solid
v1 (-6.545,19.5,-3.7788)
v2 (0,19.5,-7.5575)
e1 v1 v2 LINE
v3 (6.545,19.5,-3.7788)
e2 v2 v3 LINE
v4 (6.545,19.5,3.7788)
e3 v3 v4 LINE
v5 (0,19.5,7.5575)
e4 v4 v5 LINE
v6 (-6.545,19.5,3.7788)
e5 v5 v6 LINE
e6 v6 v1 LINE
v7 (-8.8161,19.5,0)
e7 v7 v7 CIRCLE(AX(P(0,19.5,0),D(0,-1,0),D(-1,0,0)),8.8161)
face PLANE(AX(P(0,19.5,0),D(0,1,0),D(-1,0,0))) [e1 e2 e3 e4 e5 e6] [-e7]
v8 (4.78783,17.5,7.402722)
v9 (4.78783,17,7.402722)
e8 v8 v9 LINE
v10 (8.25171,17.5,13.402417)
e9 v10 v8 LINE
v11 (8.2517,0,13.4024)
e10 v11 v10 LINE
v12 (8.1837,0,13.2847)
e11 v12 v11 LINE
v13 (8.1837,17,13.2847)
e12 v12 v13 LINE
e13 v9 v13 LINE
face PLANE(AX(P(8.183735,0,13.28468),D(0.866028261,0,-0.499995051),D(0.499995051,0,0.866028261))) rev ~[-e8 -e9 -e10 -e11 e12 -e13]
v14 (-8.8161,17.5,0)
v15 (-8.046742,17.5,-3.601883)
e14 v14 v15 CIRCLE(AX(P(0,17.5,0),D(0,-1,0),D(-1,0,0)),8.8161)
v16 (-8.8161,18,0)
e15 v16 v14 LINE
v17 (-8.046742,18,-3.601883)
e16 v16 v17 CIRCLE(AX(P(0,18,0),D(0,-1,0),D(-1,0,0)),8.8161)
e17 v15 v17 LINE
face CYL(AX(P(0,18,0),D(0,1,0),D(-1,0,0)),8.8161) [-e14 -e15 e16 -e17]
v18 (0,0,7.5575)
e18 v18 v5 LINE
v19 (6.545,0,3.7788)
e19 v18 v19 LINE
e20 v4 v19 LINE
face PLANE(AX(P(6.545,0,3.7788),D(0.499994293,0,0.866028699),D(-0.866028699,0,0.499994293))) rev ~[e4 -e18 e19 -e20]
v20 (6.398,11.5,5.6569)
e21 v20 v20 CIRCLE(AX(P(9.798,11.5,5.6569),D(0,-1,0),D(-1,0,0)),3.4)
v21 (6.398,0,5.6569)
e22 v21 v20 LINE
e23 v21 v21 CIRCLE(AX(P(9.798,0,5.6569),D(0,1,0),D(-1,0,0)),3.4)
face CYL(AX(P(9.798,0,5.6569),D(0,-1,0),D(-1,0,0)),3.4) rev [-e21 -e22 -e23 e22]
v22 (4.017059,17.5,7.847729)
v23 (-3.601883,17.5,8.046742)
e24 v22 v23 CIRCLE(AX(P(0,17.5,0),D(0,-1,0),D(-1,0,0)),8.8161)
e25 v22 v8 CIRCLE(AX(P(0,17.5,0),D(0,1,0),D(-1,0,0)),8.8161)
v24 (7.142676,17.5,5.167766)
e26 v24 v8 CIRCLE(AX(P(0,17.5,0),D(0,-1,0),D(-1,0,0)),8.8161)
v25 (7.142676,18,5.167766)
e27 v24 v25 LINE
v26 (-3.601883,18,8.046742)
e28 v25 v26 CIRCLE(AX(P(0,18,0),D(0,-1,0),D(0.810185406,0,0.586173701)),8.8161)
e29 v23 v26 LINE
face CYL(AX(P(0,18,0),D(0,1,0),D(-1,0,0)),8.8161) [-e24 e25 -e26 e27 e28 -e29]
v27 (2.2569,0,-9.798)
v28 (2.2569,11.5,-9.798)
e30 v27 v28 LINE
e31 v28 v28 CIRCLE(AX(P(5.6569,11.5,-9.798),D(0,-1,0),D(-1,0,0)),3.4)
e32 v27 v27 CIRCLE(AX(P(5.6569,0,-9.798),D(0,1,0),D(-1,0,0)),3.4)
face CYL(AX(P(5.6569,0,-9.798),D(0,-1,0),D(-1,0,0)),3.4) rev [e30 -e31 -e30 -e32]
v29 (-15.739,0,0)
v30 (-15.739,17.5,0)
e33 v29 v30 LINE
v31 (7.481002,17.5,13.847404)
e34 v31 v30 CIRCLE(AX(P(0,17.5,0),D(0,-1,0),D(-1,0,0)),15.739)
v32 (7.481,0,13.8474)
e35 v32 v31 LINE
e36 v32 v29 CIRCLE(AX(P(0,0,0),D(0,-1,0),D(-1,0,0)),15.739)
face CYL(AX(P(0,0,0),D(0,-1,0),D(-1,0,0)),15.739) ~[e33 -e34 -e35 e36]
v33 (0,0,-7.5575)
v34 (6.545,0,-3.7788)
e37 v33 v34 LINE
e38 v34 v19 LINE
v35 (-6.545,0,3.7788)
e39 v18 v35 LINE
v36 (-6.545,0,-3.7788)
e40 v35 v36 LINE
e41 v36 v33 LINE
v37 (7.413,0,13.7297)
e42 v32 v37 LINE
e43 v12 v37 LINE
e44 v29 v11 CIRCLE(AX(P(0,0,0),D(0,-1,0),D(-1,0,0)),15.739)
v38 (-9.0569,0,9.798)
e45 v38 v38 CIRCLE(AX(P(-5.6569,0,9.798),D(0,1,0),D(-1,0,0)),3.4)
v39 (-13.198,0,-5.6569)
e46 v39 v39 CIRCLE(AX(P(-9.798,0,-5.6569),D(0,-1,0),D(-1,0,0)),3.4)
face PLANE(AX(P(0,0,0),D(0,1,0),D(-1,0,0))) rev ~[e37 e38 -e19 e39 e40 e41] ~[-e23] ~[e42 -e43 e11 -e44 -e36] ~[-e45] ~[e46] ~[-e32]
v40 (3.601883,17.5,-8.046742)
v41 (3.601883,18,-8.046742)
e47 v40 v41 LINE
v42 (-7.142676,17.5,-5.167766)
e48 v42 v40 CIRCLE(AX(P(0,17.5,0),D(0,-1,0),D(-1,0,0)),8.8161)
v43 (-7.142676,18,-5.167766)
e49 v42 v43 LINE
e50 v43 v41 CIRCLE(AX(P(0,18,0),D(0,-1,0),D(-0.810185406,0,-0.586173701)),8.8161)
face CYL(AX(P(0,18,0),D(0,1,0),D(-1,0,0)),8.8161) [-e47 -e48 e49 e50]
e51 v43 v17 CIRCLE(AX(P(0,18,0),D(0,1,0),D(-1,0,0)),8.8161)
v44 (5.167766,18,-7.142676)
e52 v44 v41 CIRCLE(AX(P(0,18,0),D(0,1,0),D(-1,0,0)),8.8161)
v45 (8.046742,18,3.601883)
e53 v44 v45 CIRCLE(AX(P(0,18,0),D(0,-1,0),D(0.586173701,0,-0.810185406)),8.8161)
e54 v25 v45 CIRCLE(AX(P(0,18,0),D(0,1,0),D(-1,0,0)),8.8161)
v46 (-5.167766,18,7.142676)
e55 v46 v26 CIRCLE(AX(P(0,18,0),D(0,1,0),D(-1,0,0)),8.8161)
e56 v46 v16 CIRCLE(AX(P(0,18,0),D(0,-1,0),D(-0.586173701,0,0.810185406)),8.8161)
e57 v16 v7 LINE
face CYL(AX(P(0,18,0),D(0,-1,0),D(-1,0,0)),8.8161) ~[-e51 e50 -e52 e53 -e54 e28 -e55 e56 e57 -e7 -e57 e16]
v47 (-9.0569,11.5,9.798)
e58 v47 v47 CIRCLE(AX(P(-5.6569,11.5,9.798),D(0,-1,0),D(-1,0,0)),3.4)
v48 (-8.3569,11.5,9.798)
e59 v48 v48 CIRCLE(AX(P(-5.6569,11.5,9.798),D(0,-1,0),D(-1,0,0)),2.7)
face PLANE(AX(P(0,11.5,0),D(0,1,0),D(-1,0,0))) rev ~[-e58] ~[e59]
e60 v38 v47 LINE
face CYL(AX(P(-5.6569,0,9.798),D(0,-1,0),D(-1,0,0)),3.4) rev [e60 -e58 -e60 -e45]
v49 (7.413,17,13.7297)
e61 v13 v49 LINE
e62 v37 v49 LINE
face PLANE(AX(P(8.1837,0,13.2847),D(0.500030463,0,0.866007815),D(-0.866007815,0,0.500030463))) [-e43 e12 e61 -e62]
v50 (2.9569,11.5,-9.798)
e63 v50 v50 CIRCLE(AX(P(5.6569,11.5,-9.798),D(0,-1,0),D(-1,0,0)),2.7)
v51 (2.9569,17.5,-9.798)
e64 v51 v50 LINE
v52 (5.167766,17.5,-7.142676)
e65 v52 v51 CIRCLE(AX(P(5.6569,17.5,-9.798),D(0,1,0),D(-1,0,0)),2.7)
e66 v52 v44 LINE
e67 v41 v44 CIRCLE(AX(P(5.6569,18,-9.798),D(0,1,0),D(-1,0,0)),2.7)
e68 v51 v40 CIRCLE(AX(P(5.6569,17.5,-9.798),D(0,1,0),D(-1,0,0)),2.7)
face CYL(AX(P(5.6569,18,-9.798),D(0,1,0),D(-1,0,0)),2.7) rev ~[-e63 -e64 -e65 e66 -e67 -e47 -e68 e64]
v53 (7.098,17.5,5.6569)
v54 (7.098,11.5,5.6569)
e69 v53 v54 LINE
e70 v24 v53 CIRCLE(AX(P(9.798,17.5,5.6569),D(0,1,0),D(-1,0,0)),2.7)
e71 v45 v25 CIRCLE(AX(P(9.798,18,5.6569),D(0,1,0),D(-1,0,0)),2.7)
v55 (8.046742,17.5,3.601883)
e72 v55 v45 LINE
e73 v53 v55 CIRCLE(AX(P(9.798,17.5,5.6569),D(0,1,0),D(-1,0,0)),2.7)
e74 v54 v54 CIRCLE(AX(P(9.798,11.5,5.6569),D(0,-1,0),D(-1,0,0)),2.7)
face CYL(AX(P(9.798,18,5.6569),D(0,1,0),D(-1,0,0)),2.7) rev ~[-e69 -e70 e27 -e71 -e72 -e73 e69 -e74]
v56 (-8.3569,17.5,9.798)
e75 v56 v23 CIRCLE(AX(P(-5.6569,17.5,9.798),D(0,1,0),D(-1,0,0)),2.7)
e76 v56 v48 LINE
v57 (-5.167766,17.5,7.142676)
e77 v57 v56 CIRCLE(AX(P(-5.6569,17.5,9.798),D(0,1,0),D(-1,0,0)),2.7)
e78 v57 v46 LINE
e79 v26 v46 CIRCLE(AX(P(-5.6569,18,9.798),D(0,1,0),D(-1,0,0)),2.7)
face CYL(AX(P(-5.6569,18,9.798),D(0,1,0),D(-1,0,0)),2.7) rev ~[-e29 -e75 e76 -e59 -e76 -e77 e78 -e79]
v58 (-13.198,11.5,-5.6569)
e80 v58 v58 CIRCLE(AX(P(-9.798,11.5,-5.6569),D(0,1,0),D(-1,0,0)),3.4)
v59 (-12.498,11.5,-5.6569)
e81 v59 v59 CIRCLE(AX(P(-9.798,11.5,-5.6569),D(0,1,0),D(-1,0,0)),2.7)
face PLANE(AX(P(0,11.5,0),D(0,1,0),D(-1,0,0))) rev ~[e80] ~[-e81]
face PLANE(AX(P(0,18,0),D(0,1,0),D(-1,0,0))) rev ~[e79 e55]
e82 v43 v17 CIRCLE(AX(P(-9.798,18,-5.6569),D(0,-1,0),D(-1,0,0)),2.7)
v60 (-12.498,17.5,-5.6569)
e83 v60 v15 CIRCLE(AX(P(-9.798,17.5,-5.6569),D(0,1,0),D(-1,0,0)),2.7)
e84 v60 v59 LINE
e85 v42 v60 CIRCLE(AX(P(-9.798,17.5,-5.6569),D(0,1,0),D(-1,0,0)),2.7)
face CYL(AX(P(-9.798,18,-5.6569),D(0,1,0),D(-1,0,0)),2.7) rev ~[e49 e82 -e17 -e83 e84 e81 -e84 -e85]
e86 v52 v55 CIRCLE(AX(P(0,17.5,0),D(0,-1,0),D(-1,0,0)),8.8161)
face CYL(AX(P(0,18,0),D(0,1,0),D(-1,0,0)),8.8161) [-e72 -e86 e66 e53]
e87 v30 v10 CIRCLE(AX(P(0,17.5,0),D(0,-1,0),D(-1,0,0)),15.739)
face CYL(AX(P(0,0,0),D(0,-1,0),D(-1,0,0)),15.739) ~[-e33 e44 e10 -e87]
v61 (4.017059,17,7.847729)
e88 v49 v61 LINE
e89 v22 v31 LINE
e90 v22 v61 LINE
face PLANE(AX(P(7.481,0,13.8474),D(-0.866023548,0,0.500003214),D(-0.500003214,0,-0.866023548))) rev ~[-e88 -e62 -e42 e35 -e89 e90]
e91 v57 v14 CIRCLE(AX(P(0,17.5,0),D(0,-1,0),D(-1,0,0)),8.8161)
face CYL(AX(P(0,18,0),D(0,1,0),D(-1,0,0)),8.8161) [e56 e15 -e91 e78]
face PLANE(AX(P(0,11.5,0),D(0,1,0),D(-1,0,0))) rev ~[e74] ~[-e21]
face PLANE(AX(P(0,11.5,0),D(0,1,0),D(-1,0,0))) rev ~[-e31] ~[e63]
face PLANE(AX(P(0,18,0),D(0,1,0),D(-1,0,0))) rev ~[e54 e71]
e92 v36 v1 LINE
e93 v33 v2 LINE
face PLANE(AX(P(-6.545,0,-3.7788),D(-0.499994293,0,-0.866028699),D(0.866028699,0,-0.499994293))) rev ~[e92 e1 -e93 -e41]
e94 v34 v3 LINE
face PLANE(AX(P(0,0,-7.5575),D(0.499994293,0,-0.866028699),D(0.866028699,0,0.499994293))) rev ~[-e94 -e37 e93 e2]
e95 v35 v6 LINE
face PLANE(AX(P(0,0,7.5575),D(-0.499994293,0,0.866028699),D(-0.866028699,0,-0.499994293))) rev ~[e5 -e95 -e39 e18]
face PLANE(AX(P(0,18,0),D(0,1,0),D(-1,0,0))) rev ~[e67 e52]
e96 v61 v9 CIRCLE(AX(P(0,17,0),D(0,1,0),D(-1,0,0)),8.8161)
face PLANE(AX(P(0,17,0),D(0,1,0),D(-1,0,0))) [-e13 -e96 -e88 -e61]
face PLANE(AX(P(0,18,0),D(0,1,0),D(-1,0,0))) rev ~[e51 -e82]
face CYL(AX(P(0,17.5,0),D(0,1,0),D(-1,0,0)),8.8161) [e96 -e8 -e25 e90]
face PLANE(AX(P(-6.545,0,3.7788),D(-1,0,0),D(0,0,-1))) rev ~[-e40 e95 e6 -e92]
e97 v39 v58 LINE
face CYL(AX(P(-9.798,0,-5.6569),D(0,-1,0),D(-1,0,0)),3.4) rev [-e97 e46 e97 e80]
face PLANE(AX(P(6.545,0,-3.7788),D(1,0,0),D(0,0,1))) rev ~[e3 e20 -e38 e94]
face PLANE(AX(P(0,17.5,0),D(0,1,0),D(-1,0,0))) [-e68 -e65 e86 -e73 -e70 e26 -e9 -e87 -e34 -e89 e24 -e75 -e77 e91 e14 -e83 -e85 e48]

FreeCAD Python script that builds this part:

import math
import FreeCAD as App
import Part
import Sketcher
Q = App.Units.Quantity


def add_polygon(sketch, points):
    """Adds a closed chain of lines whose ends are joined by coincident constraints."""
    first, n = sketch.GeometryCount, len(points)
    for a, b in zip(points, points[1:] + points[:1]):
        sketch.addGeometry(Part.LineSegment(App.Vector(*a, 0), App.Vector(*b, 0)), False)
    for i in range(n):
        sketch.addConstraint(Sketcher.Constraint("Coincident", first + i, 2, first + (i + 1) % n, 1))

doc = App.newDocument("Part")
body = doc.addObject("PartDesign::Body", "Body")

# Sketch on XZ plane
sketch1 = body.newObject("Sketcher::SketchObject", "Sketch")
sketch1.AttachmentSupport = (doc.getObject("XZ_Plane"), [""])
sketch1.MapMode = "FlatFace"
sketch1.addGeometry(Part.Circle(App.Vector(0, 0, 0), App.Vector(0, 0, 1), 15.7), False)  # 0
sketch1.addGeometry(Part.Circle(App.Vector(-9.8, -5.7, 0), App.Vector(0, 0, 1), 3.4), False)  # 1
sketch1.addGeometry(Part.Circle(App.Vector(-5.7, 9.8, 0), App.Vector(0, 0, 1), 3.4), False)  # 2
sketch1.addGeometry(Part.Circle(App.Vector(9.8, 5.7, 0), App.Vector(0, 0, 1), 3.4), False)  # 3
sketch1.addGeometry(Part.Circle(App.Vector(5.7, -9.8, 0), App.Vector(0, 0, 1), 3.4), False)  # 4
add_polygon(sketch1, [(0, 7.6), (-6.5, 3.8), (-6.5, -3.8), (0, -7.6), (6.5, -3.8), (6.5, 3.8)])  # lines 5-10
sketch1.addConstraint([
    Sketcher.Constraint("Vertical", 6),
    Sketcher.Constraint("Vertical", 9),
    Sketcher.Constraint("Coincident", 0, 3, -1, 1),
    Sketcher.Constraint("Equal", 1, 2),
    Sketcher.Constraint("Equal", 2, 3),
    Sketcher.Constraint("Equal", 3, 4),
    Sketcher.Constraint("Symmetric", 1, 3, 3, 3, -1, 1),
    Sketcher.Constraint("Symmetric", 2, 3, 4, 3, -1, 1),
    Sketcher.Constraint("Symmetric", 5, 2, 8, 2, -1, 1),
    Sketcher.Constraint("Symmetric", 7, 2, 10, 2, -1, 1),
    Sketcher.Constraint("PointOnObject", 7, 2, -2),
    Sketcher.Constraint("Parallel", 7, 10),
    Sketcher.Constraint("Horizontal", 6, 2, 8, 2),
    Sketcher.Constraint("Diameter", 1, 6.8),
    Sketcher.Constraint("Diameter", 0, 31.478),
    Sketcher.Constraint("Angle", 5, Q("-150.0004 deg")),
    Sketcher.Constraint("DistanceX", 6, 2, 8, 2, 13.09),
    Sketcher.Constraint("DistanceY", 6, 2, 6, 1, 7.5576),
    Sketcher.Constraint("DistanceX", 1, 3, -1, 1, 9.798),
    Sketcher.Constraint("DistanceY", 1, 3, -1, 1, 5.657),
    Sketcher.Constraint("DistanceX", 2, 3, -1, 1, 5.657),
    Sketcher.Constraint("DistanceY", -1, 1, 2, 3, 9.798),
])
pad1 = body.newObject("PartDesign::Pad", "Pad")
pad1.Profile = sketch1
pad1.Length = 18
pad1.Reversed = True

# Sketch on XZ plane
sketch2 = body.newObject("Sketcher::SketchObject", "Sketch001")
sketch2.AttachmentSupport = (doc.getObject("XZ_Plane"), [""])
sketch2.MapMode = "FlatFace"
sketch2.AttachmentOffset = App.Placement(App.Vector(0, 0, -18), App.Rotation())
sketch2.addGeometry(Part.Circle(App.Vector(0, 0, 0), App.Vector(0, 0, 1), 9), False)  # 0
add_polygon(sketch2, [(7, 4), (0, 8), (-7, 4), (-7, -4), (0, -8), (7, -4)])  # lines 1-6
sketch2.addConstraint([
    Sketcher.Constraint("Vertical", 3),
    Sketcher.Constraint("Vertical", 6),
    Sketcher.Constraint("Coincident", 0, 3, -1, 1),
    Sketcher.Constraint("Symmetric", 1, 2, 4, 2, -1, 1),
    Sketcher.Constraint("Symmetric", 2, 2, 5, 2, -1, 1),
    Sketcher.Constraint("PointOnObject", 1, 2, -2),
    Sketcher.Constraint("Parallel", 1, 4),
    Sketcher.Constraint("Horizontal", 3, 2, 5, 2),
    Sketcher.Constraint("Angle", 1, Q("150.0004 deg")),
    Sketcher.Constraint("DistanceX", 3, 2, 5, 2, 13.09),
    Sketcher.Constraint("Diameter", 0, 17.6322),
    Sketcher.Constraint("DistanceY", 3, 2, 3, 1, 7.5576),
])
pad2 = body.newObject("PartDesign::Pad", "Pad001")
pad2.Profile = sketch2
pad2.Length = 1.5
pad2.Reversed = True

# Sketch on XZ plane
sketch3 = body.newObject("Sketcher::SketchObject", "Sketch002")
sketch3.AttachmentSupport = (doc.getObject("XZ_Plane"), [""])
sketch3.MapMode = "FlatFace"
sketch3.AttachmentOffset = App.Placement(App.Vector(0, 0, -18), App.Rotation())
sketch3.addGeometry([
    Part.Circle(App.Vector(-9.8, -5.7, 0), App.Vector(0, 0, 1), 3.4),  # 0
    Part.Circle(App.Vector(-9.8, -5.7, 0), App.Vector(0, 0, 1), 2.7),  # 1
    Part.Circle(App.Vector(5.7, -9.8, 0), App.Vector(0, 0, 1), 3.4),  # 2
    Part.Circle(App.Vector(5.7, -9.8, 0), App.Vector(0, 0, 1), 2.7),  # 3
    Part.Circle(App.Vector(-5.7, 9.8, 0), App.Vector(0, 0, 1), 3.4),  # 4
    Part.Circle(App.Vector(-5.7, 9.8, 0), App.Vector(0, 0, 1), 2.7),  # 5
    Part.Circle(App.Vector(9.8, 5.7, 0), App.Vector(0, 0, 1), 3.4),  # 6
    Part.Circle(App.Vector(9.8, 5.7, 0), App.Vector(0, 0, 1), 2.7),  # 7
], False)
sketch3.addConstraint([
    Sketcher.Constraint("Coincident", 1, 3, 0, 3),
    Sketcher.Constraint("Coincident", 3, 3, 2, 3),
    Sketcher.Constraint("Coincident", 5, 3, 4, 3),
    Sketcher.Constraint("Coincident", 7, 3, 6, 3),
    Sketcher.Constraint("Equal", 0, 2),
    Sketcher.Constraint("Equal", 1, 3),
    Sketcher.Constraint("Equal", 2, 4),
    Sketcher.Constraint("Equal", 3, 5),
    Sketcher.Constraint("Equal", 4, 6),
    Sketcher.Constraint("Equal", 5, 7),
    Sketcher.Constraint("Symmetric", 2, 3, 4, 3, -1, 1),
    Sketcher.Constraint("Symmetric", 0, 3, 6, 3, -1, 1),
    Sketcher.Constraint("Diameter", 0, 6.8),
    Sketcher.Constraint("Diameter", 1, 5.4),
    Sketcher.Constraint("DistanceX", 0, 3, -1, 1, 9.798),
    Sketcher.Constraint("DistanceY", 0, 3, -1, 1, 5.657),
    Sketcher.Constraint("DistanceX", -1, 1, 2, 3, 5.657),
    Sketcher.Constraint("DistanceY", 2, 3, -1, 1, 9.798),
])
pad3 = body.newObject("PartDesign::Pad", "Pad002")
pad3.Profile = sketch3
pad3.Length = 6.5

# Sketch on XZ plane
sketch4 = body.newObject("Sketcher::SketchObject", "Sketch003")
sketch4.AttachmentSupport = (doc.getObject("XZ_Plane"), [""])
sketch4.MapMode = "FlatFace"
sketch4.AttachmentOffset = App.Placement(App.Vector(0, 0, -18), App.Rotation())
sketch4.addGeometry([
    Part.Circle(App.Vector(0, 0, 0), App.Vector(0, 0, 1), 16),
    Part.Circle(App.Vector(0, 0, 0), App.Vector(0, 0, 1), 9),
], False)
sketch4.addConstraint([
    Sketcher.Constraint("Coincident", 0, 3, -1, 1),
    Sketcher.Constraint("Coincident", 1, 3, -1, 1),
    Sketcher.Constraint("Diameter", 0, 31.478),
    Sketcher.Constraint("Diameter", 1, 17.6322),
])
pocket1 = body.newObject("PartDesign::Pocket", "Pocket")
pocket1.Profile = sketch4
pocket1.Length = 0.5
pocket1.Reversed = True

# Sketch on XZ plane
sketch5 = body.newObject("Sketcher::SketchObject", "Sketch004")
sketch5.AttachmentSupport = (doc.getObject("XZ_Plane"), [""])
sketch5.MapMode = "FlatFace"
sketch5.addGeometry([
    Part.LineSegment(App.Vector(8.18, 13.28, 0), App.Vector(7.41, 13.73, 0)),
    Part.LineSegment(App.Vector(7.41, 13.73, 0), App.Vector(7.48, 13.85, 0)),
    Part.ArcOfCircle(Part.Circle(App.Vector(0, 0, 0), App.Vector(0, 0, 1), 15.74), math.radians(58.38), math.radians(61.62)),
    Part.LineSegment(App.Vector(8.25, 13.4, 0), App.Vector(8.18, 13.28, 0)),
], False)
sketch5.addConstraint([
    Sketcher.Constraint("Coincident", 0, 2, 1, 1),
    Sketcher.Constraint("Coincident", 1, 2, 2, 2),
    Sketcher.Constraint("Coincident", 2, 1, 3, 1),
    Sketcher.Constraint("Coincident", 3, 2, 0, 1),
    Sketcher.Constraint("Coincident", 2, 3, -1, 1),
    Sketcher.Constraint("Perpendicular", 0, 1),
    Sketcher.Constraint("Parallel", 1, 3),
    Sketcher.Constraint("Equal", 1, 3),
    Sketcher.Constraint("Radius", 2, 15.739),
    Sketcher.Constraint("Angle", 1, Q("59.9998 deg")),
    Sketcher.Constraint("Distance", 0, 0.89),
    Sketcher.Constraint("Distance", 1, 0.136),
])
pocket2 = body.newObject("PartDesign::Pocket", "Pocket001")
pocket2.Profile = sketch5
pocket2.Type = "ThroughAll"

# Sketch on XZ plane
sketch6 = body.newObject("Sketcher::SketchObject", "Sketch005")
sketch6.AttachmentSupport = (doc.getObject("XZ_Plane"), [""])
sketch6.MapMode = "FlatFace"
sketch6.AttachmentOffset = App.Placement(App.Vector(0, 0, -17.5), App.Rotation())
sketch6.addGeometry([
    Part.ArcOfCircle(Part.Circle(App.Vector(0, 0, 0), App.Vector(0, 0, 1), 8.8), math.radians(57.11), math.radians(62.89)),
    Part.LineSegment(App.Vector(4, 7.8, 0), App.Vector(7.4, 13.7, 0)),
    Part.LineSegment(App.Vector(7.4, 13.7, 0), App.Vector(8.2, 13.3, 0)),
    Part.LineSegment(App.Vector(8.2, 13.3, 0), App.Vector(4.8, 7.4, 0)),
], False)
sketch6.addConstraint([
    Sketcher.Constraint("Coincident", 0, 2, 1, 1),
    Sketcher.Constraint("Coincident", 1, 2, 2, 1),
    Sketcher.Constraint("Coincident", 2, 2, 3, 1),
    Sketcher.Constraint("Coincident", 3, 2, 0, 1),
    Sketcher.Constraint("Coincident", 0, 3, -1, 1),
    Sketcher.Constraint("Perpendicular", 1, 2),
    Sketcher.Constraint("Perpendicular", 2, 3),
    Sketcher.Constraint("Equal", 1, 3),
    Sketcher.Constraint("Angle", 1, Q("59.9998 deg")),
    Sketcher.Constraint("Radius", 0, 8.816),
    Sketcher.Constraint("Distance", 2, 0.89),
    Sketcher.Constraint("Distance", 1, 6.792),
])
pocket3 = body.newObject("PartDesign::Pocket", "Pocket002")
pocket3.Profile = sketch6
pocket3.Length = 0.5
pocket3.Reversed = True

doc.recompute()
